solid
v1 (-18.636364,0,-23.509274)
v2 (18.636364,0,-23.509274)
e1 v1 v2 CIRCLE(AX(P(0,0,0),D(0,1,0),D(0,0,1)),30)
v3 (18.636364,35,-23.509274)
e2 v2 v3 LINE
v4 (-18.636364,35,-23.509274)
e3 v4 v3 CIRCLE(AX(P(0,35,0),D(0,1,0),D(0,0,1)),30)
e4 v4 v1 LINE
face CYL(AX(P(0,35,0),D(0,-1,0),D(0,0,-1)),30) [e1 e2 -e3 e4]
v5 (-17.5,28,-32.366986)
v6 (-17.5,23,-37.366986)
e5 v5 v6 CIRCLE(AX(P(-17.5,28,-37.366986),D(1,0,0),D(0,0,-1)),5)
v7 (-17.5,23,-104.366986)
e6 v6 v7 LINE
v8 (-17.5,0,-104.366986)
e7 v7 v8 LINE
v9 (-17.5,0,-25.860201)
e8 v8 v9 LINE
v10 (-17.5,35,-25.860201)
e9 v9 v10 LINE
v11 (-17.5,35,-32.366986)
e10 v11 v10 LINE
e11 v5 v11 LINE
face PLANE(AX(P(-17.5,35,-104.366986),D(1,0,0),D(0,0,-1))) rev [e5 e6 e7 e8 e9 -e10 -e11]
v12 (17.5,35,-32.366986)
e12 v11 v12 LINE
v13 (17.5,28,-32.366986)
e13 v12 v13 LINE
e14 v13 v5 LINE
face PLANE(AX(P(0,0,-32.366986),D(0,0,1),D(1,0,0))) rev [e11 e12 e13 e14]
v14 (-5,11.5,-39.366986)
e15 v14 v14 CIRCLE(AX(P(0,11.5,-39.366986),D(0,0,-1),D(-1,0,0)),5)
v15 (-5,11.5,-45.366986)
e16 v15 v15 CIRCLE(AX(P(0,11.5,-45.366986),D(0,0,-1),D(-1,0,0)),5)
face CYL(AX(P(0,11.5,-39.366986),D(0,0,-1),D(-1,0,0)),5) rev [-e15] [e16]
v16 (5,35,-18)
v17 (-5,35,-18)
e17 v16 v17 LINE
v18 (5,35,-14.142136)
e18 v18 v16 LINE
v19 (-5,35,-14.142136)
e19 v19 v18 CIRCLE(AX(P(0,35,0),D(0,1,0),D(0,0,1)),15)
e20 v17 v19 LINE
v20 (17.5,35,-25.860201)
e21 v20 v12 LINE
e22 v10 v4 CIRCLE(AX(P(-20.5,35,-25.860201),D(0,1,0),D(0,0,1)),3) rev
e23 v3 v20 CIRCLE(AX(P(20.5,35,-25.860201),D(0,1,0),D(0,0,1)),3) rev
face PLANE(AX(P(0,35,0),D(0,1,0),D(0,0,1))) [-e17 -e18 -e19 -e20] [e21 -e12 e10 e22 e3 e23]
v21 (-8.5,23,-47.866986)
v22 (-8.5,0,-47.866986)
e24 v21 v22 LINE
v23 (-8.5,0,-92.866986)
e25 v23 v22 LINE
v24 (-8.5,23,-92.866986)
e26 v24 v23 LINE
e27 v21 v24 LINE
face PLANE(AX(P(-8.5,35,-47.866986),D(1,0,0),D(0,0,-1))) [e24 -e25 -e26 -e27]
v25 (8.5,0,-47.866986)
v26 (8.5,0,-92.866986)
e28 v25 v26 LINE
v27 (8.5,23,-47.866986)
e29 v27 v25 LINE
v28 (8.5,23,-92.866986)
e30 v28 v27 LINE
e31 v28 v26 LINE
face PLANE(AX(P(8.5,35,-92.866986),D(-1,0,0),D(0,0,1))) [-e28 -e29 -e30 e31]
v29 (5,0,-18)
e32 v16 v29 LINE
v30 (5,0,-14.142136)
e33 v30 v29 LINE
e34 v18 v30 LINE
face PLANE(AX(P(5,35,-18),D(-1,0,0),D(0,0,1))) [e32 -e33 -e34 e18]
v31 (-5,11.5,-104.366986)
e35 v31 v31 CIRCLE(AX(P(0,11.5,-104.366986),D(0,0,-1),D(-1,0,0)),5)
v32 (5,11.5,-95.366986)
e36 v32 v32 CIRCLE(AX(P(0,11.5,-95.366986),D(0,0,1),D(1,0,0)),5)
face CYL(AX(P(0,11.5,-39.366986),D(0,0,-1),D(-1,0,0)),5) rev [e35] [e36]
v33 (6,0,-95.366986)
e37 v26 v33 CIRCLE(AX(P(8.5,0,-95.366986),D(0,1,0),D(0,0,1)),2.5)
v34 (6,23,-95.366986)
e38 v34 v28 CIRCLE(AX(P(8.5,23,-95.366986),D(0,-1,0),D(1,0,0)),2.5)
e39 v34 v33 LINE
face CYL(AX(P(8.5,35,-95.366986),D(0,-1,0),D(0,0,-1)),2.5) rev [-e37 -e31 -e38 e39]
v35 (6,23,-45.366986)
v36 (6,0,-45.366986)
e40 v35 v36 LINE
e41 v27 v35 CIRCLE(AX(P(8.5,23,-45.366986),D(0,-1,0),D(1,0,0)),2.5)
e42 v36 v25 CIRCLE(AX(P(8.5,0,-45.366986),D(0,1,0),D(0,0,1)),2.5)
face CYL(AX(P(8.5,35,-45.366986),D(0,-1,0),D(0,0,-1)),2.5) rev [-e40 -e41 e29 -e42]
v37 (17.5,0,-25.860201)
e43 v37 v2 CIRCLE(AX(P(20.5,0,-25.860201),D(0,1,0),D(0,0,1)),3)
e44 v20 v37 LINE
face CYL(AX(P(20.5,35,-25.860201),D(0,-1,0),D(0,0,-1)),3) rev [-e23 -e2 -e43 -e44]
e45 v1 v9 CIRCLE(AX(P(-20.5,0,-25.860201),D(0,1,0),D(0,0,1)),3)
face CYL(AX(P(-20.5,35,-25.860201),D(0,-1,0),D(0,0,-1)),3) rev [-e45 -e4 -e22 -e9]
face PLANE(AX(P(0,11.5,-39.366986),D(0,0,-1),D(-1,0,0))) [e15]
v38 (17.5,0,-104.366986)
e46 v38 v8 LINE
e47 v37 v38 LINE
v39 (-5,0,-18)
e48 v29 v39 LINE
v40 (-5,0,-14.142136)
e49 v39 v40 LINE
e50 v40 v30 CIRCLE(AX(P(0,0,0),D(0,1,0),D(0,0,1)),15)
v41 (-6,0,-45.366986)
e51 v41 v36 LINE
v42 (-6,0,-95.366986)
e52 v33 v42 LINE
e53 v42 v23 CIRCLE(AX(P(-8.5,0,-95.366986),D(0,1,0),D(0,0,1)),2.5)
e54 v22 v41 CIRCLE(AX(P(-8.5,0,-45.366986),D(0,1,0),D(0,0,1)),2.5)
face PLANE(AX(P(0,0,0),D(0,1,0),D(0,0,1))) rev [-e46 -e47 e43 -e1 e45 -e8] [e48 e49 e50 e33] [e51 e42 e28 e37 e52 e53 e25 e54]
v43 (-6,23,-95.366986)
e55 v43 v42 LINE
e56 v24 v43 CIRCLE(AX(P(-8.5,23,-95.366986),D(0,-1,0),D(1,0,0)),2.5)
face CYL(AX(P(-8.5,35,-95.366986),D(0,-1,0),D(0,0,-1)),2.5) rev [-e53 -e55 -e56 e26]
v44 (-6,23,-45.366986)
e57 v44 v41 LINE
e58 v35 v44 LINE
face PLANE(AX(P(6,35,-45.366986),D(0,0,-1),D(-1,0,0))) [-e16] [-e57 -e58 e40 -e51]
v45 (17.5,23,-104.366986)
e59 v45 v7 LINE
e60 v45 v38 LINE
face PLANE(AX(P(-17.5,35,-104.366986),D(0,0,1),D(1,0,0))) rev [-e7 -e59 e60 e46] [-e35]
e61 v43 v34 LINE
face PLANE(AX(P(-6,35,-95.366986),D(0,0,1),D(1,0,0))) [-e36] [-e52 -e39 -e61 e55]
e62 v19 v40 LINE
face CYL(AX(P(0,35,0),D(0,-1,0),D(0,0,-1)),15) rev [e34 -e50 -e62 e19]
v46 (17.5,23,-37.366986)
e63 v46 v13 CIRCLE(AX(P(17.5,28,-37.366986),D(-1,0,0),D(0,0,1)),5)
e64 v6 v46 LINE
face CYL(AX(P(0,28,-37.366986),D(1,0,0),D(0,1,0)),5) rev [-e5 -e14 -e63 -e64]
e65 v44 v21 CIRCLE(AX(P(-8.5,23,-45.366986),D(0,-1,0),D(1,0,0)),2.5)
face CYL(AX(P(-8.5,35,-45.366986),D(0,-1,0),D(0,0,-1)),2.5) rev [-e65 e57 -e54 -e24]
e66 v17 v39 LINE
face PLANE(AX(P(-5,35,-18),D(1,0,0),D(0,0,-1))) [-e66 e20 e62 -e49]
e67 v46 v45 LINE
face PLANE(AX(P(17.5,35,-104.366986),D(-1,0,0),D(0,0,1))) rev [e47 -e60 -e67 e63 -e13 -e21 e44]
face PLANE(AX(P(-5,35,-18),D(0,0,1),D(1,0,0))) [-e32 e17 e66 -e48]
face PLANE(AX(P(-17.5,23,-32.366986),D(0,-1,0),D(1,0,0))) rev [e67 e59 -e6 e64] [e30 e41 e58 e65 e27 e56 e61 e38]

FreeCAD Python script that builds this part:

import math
import FreeCAD as App
import Part
import Sketcher
from FreeCAD import Vector


def edges_at(feature, points):
    """Names of the edges that pass closest to the given points."""
    edges = feature.Shape.Edges
    near = lambda p: min(range(len(edges)), key=lambda i: edges[i].distToShape(Part.Vertex(*p))[0])
    return sorted({f"Edge{near(p) + 1}" for p in points})


def add_polygon(sketch, points):
    """Adds a closed chain of lines whose ends are joined by coincident constraints."""
    first, n = sketch.GeometryCount, len(points)
    for a, b in zip(points, points[1:] + points[:1]):
        sketch.addGeometry(Part.LineSegment(App.Vector(*a, 0), App.Vector(*b, 0)), False)
    for i in range(n):
        sketch.addConstraint(Sketcher.Constraint("Coincident", first + i, 2, first + (i + 1) % n, 1))

doc = App.newDocument("Part")
body = doc.addObject("PartDesign::Body", "Body")

# Sketch on XZ plane
sketch1 = doc.addObject("Sketcher::SketchObject", "Sketch")
body.addObject(sketch1)
sketch1.AttachmentSupport = (doc.XZ_Plane, [""])
sketch1.MapMode = "FlatFace"
sketch1.addGeometry(Part.LineSegment(Vector(17.5, -104.4, 0), Vector(-17.5, -104.4, 0)), False)
sketch1.addGeometry(Part.LineSegment(Vector(-17.5, -104.4, 0), Vector(-17.5, -24.4, 0)), False)
sketch1.addGeometry(Part.ArcOfCircle(Part.Circle(Vector(0, 0, 0), Vector(0, 0, 1), 30), math.radians(-54), math.radians(234)), False)
sketch1.addGeometry(Part.LineSegment(Vector(17.5, -24.4, 0), Vector(17.5, -104.4, 0)), False)
sketch1.addGeometry(Part.LineSegment(Vector(5, -18, 0), Vector(5, -14.1, 0)), False)
sketch1.addGeometry(Part.ArcOfCircle(Part.Circle(Vector(0, 0, 0), Vector(0, 0, 1), 15), math.radians(-71), math.radians(251)), False)
sketch1.addGeometry(Part.LineSegment(Vector(-5, -14.1, 0), Vector(-5, -18, 0)), False)
sketch1.addGeometry(Part.LineSegment(Vector(-5, -18, 0), Vector(5, -18, 0)), False)
sketch1.addGeometry(Part.LineSegment(Vector(-6, -95.4, 0), Vector(6, -95.4, 0)), False)
sketch1.addGeometry(Part.ArcOfCircle(Part.Circle(Vector(8.5, -95.4, 0), Vector(0, 0, 1), 2.5), math.radians(180), math.radians(450)), False)
sketch1.addGeometry(Part.LineSegment(Vector(8.5, -92.9, 0), Vector(8.5, -47.9, 0)), False)
sketch1.addGeometry(Part.ArcOfCircle(Part.Circle(Vector(8.5, -45.4, 0), Vector(0, 0, 1), 2.5), math.radians(-90), math.radians(180)), False)
sketch1.addGeometry(Part.LineSegment(Vector(6, -45.4, 0), Vector(-6, -45.4, 0)), False)
sketch1.addGeometry(Part.ArcOfCircle(Part.Circle(Vector(-8.5, -45.4, 0), Vector(0, 0, 1), 2.5), math.radians(0), math.radians(270)), False)
sketch1.addGeometry(Part.LineSegment(Vector(-8.5, -47.9, 0), Vector(-8.5, -92.9, 0)), False)
sketch1.addGeometry(Part.ArcOfCircle(Part.Circle(Vector(-8.5, -95.4, 0), Vector(0, 0, 1), 2.5), math.radians(90), math.radians(360)), False)
sketch1.addConstraint(Sketcher.Constraint("Coincident", 0, 2, 1, 1))
sketch1.addConstraint(Sketcher.Constraint("Coincident", 1, 2, 2, 2))
sketch1.addConstraint(Sketcher.Constraint("Coincident", 2, 1, 3, 1))
sketch1.addConstraint(Sketcher.Constraint("Coincident", 3, 2, 0, 1))
sketch1.addConstraint(Sketcher.Constraint("Coincident", 4, 2, 5, 1))
sketch1.addConstraint(Sketcher.Constraint("Coincident", 5, 2, 6, 1))
sketch1.addConstraint(Sketcher.Constraint("Coincident", 6, 2, 7, 1))
sketch1.addConstraint(Sketcher.Constraint("Coincident", 7, 2, 4, 1))
sketch1.addConstraint(Sketcher.Constraint("Coincident", 8, 2, 9, 1))
sketch1.addConstraint(Sketcher.Constraint("Coincident", 9, 2, 10, 1))
sketch1.addConstraint(Sketcher.Constraint("Coincident", 10, 2, 11, 1))
sketch1.addConstraint(Sketcher.Constraint("Coincident", 11, 2, 12, 1))
sketch1.addConstraint(Sketcher.Constraint("Coincident", 12, 2, 13, 1))
sketch1.addConstraint(Sketcher.Constraint("Coincident", 13, 2, 14, 1))
sketch1.addConstraint(Sketcher.Constraint("Coincident", 14, 2, 15, 1))
sketch1.addConstraint(Sketcher.Constraint("Coincident", 15, 2, 8, 1))
sketch1.addConstraint(Sketcher.Constraint("Horizontal", 0))
sketch1.addConstraint(Sketcher.Constraint("Vertical", 1))
sketch1.addConstraint(Sketcher.Constraint("Vertical", 3))
sketch1.addConstraint(Sketcher.Constraint("Vertical", 4))
sketch1.addConstraint(Sketcher.Constraint("Vertical", 6))
sketch1.addConstraint(Sketcher.Constraint("Horizontal", 7))
sketch1.addConstraint(Sketcher.Constraint("Horizontal", 8))
sketch1.addConstraint(Sketcher.Constraint("Vertical", 10))
sketch1.addConstraint(Sketcher.Constraint("Horizontal", 12))
sketch1.addConstraint(Sketcher.Constraint("Vertical", 14))
sketch1.addConstraint(Sketcher.Constraint("Coincident", 2, 3, -1, 1))
sketch1.addConstraint(Sketcher.Constraint("Coincident", 5, 3, -1, 1))
sketch1.addConstraint(Sketcher.Constraint("Equal", 9, 11))
sketch1.addConstraint(Sketcher.Constraint("Equal", 11, 13))
sketch1.addConstraint(Sketcher.Constraint("Equal", 13, 15))
sketch1.addConstraint(Sketcher.Constraint("Symmetric", 11, 3, 13, 3, -2))
sketch1.addConstraint(Sketcher.Constraint("Symmetric", 9, 3, 15, 3, -2))
sketch1.addConstraint(Sketcher.Constraint("Horizontal", 1, 2, 2, 1))
sketch1.addConstraint(Sketcher.Constraint("Horizontal", 4, 2, 5, 2))
sketch1.addConstraint(Sketcher.Constraint("Horizontal", 15, 3, 8, 2))
sketch1.addConstraint(Sketcher.Constraint("Horizontal", 13, 3, 11, 2))
sketch1.addConstraint(Sketcher.Constraint("Vertical", 9, 3, 11, 3))
sketch1.addConstraint(Sketcher.Constraint("Vertical", 11, 3, 9, 2))
sketch1.addConstraint(Sketcher.Constraint("Vertical", 15, 3, 13, 2))
sketch1.addConstraint(Sketcher.Constraint("Radius", 2, 30.0))
sketch1.addConstraint(Sketcher.Constraint("Radius", 5, 15.0))
sketch1.addConstraint(Sketcher.Constraint("Radius", 9, 2.5))
sketch1.addConstraint(Sketcher.Constraint("DistanceX", 0, 2, 0, 1, 35.0))
sketch1.addConstraint(Sketcher.Constraint("DistanceX", 7, 1, 7, 2, 10.0))
sketch1.addConstraint(Sketcher.Constraint("DistanceX", 8, 1, 8, 2, 12.0))
sketch1.addConstraint(Sketcher.Constraint("DistanceY", 1, 1, 1, 2, 80.0))
sketch1.addConstraint(Sketcher.Constraint("DistanceY", 10, 1, 10, 2, 45.0))
sketch1.addConstraint(Sketcher.Constraint("DistanceY", 6, 2, -1, 1, 18.0))
sketch1.addConstraint(Sketcher.Constraint("DistanceY", 0, 2, 15, 3, 9.0))
pad1 = doc.addObject("PartDesign::Pad", "Pad")
body.addObject(pad1)
pad1.Profile = sketch1
pad1.Length = 35
pad1.Reversed = True

# Sketch on XY plane
sketch2 = doc.addObject("Sketcher::SketchObject", "Sketch001")
body.addObject(sketch2)
sketch2.AttachmentSupport = (doc.XY_Plane, [""])
sketch2.MapMode = "FlatFace"
sketch2.AttachmentOffset = App.Placement(Vector(0, 0, -104.366986), App.Rotation())
add_polygon(sketch2, [(18, 35), (18, 23), (-18, 23), (-18, 35)])  # lines 0-3
sketch2.addConstraint(Sketcher.Constraint("Vertical", 0))
sketch2.addConstraint(Sketcher.Constraint("Horizontal", 1))
sketch2.addConstraint(Sketcher.Constraint("Vertical", 2))
sketch2.addConstraint(Sketcher.Constraint("Horizontal", 3))
sketch2.addConstraint(Sketcher.Constraint("DistanceX", 1, 2, 1, 1, 35.0))
sketch2.addConstraint(Sketcher.Constraint("DistanceY", 0, 2, 0, 1, 12.0))
sketch2.addConstraint(Sketcher.Constraint("DistanceY", -1, 1, 0, 2, 23.0))
sketch2.addConstraint(Sketcher.Constraint("DistanceX", -1, 1, 0, 2, 17.5))
pocket1 = doc.addObject("PartDesign::Pocket", "Pocket")
body.addObject(pocket1)
pocket1.Profile = sketch2
pocket1.Length = 72
pocket1.Reversed = True
doc.recompute()

fillet = doc.addObject("PartDesign::Fillet", "Fillet")
body.addObject(fillet)
fillet.Base = (pocket1, edges_at(pocket1, [(0, 23, -32.367)]))
fillet.Radius = 5
doc.recompute()

fillet2 = doc.addObject("PartDesign::Fillet", "Fillet001")
body.addObject(fillet2)
fillet2.Base = (fillet, edges_at(fillet, [(-17.5, 17.5, -24.367), (17.5, 17.5, -24.367)]))
fillet2.Radius = 3

# Sketch on XY plane
sketch3 = doc.addObject("Sketcher::SketchObject", "Sketch002")
body.addObject(sketch3)
sketch3.AttachmentSupport = (doc.XY_Plane, [""])
sketch3.MapMode = "FlatFace"
sketch3.AttachmentOffset = App.Placement(Vector(0, 0, -104.366986), App.Rotation())
sketch3.addGeometry(Part.Circle(Vector(0, 12, 0), Vector(0, 0, 1), 5), False)
sketch3.addConstraint(Sketcher.Constraint("PointOnObject", 0, 3, -2))
sketch3.addConstraint(Sketcher.Constraint("Diameter", 0, 10.0))
sketch3.addConstraint(Sketcher.Constraint("DistanceY", -1, 1, 0, 3, 11.5))
pocket2 = doc.addObject("PartDesign::Pocket", "Pocket001")
body.addObject(pocket2)
pocket2.Profile = sketch3
pocket2.Length = 65
pocket2.Reversed = True

doc.recompute()
